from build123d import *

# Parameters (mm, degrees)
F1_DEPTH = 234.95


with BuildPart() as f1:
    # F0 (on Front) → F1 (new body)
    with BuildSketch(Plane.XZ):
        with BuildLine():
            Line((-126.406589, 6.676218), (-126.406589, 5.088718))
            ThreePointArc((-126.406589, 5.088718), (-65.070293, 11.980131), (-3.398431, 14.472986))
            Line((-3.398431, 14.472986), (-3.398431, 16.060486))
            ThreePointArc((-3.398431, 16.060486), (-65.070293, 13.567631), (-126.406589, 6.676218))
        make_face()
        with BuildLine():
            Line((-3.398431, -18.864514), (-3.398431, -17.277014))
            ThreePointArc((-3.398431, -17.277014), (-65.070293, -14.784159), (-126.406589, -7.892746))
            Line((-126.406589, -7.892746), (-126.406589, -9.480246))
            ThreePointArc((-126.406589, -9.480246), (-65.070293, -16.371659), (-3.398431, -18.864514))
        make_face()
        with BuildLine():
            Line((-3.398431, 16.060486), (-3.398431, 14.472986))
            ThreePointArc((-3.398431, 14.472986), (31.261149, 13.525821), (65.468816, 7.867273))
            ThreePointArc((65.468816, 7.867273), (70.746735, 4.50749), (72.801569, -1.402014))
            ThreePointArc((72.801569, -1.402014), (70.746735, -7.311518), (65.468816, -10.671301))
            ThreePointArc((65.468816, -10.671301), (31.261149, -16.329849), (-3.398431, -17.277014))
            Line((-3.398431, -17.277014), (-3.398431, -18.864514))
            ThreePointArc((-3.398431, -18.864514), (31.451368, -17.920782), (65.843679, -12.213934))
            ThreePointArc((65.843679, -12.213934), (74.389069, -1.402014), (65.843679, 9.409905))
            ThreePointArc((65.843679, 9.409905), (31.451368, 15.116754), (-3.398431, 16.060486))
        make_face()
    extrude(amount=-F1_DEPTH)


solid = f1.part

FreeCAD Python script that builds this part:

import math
import FreeCAD as App
import Part
import Sketcher
Q = App.Units.Quantity

doc = App.newDocument("Part")
body = doc.addObject("PartDesign::Body", "Body")

# Sketch on XZ plane
sketch1 = doc.addObject("Sketcher::SketchObject", "Sketch")
body.addObject(sketch1)
sketch1.AttachmentSupport = (doc.XZ_Plane, [""])
sketch1.MapMode = "FlatFace"
sketch1.addGeometry([
    Part.LineSegment(App.Vector(-126.406589, 6.676218, 0), App.Vector(-126.406589, 5.088718, 0)),  # 0
    Part.ArcOfCircle(Part.Circle(App.Vector(0.622686, -849.117643, 0), App.Vector(0, 0, 1), 863.599991), math.radians(90.266783), math.radians(98.458483)),  # 1
    Part.ArcOfCircle(Part.Circle(App.Vector(7.008907, -239.313679, 0), App.Vector(0, 0, 1), 253.999969), math.radians(76.693676), math.radians(92.348282)),  # 2
    Part.ArcOfCircle(Part.Circle(App.Vector(63.276567, -1.402015, 0), App.Vector(0, 0, 1), 9.525002), math.radians(0.000008), math.radians(76.693666)),  # 3
    Part.ArcOfCircle(Part.Circle(App.Vector(63.276567, -1.402013, 0), App.Vector(0, 0, 1), 9.525002), math.radians(-76.693666), math.radians(-0.000008)),  # 4
    Part.ArcOfCircle(Part.Circle(App.Vector(7.008907, 236.509651, 0), App.Vector(0, 0, 1), 253.999969), math.radians(-92.348282), math.radians(-76.693676)),  # 5
    Part.ArcOfCircle(Part.Circle(App.Vector(0.622686, 846.313615, 0), App.Vector(0, 0, 1), 863.599991), math.radians(-98.458483), math.radians(-90.266783)),  # 6
    Part.LineSegment(App.Vector(-126.406589, -7.892746, 0), App.Vector(-126.406589, -9.480246, 0)),  # 7
    Part.ArcOfCircle(Part.Circle(App.Vector(0.622686, 844.726115, 0), App.Vector(0, 0, 1), 863.599991), math.radians(-98.458483), math.radians(-90.266783)),  # 8
    Part.ArcOfCircle(Part.Circle(App.Vector(7.166884, 234.915656, 0), App.Vector(0, 0, 1), 254.000001), math.radians(-92.383947), math.radians(-76.643399)),  # 9
    Part.ArcOfCircle(Part.Circle(App.Vector(63.276569, -1.402014, 0), App.Vector(0, 0, 1), 11.1125), math.radians(-76.643398), math.radians(76.643398)),  # 10
    Part.ArcOfCircle(Part.Circle(App.Vector(7.166885, -237.719633, 0), App.Vector(0, 0, 1), 253.99995), math.radians(76.643396), math.radians(92.383948)),  # 11
    Part.ArcOfCircle(Part.Circle(App.Vector(0.622686, -847.530143, 0), App.Vector(0, 0, 1), 863.599991), math.radians(90.266783), math.radians(98.458483)),  # 12
], False)
sketch1.addConstraint([
    Sketcher.Constraint("Coincident", 0, 2, 1, 2),
    Sketcher.Constraint("Coincident", 1, 1, 2, 2),
    Sketcher.Constraint("Coincident", 2, 1, 3, 2),
    Sketcher.Constraint("Coincident", 3, 1, 4, 2),
    Sketcher.Constraint("Coincident", 4, 1, 5, 2),
    Sketcher.Constraint("Coincident", 5, 1, 6, 2),
    Sketcher.Constraint("Coincident", 6, 1, 7, 1),
    Sketcher.Constraint("Coincident", 7, 2, 8, 1),
    Sketcher.Constraint("Coincident", 8, 2, 9, 1),
    Sketcher.Constraint("Coincident", 9, 2, 10, 1),
    Sketcher.Constraint("Coincident", 10, 2, 11, 1),
    Sketcher.Constraint("Coincident", 11, 2, 12, 1),
    Sketcher.Constraint("Coincident", 12, 2, 0, 1),
    Sketcher.Constraint("Vertical", 0),
    Sketcher.Constraint("Vertical", 7),
    Sketcher.Constraint("Coincident", 4, 3, 3, 3),
    Sketcher.Constraint("Coincident", 10, 3, 3, 3),
    Sketcher.Constraint("Radius", 9, Q("10.0000001 in")),
    Sketcher.Constraint("Radius", 3, Q("0.3750001 in")),
    Sketcher.Constraint("Radius", 10, Q("0.4375 in")),
    Sketcher.Constraint("DistanceX", 1, 1, 3, 1, Q("3 in")),
    Sketcher.Constraint("DistanceY", 0, 2, 0, 1, Q("0.0625 in")),
    Sketcher.Constraint("DistanceY", 7, 2, 7, 1, Q("0.0625 in")),
    Sketcher.Constraint("DistanceY", 5, 1, 1, 1, Q("1.25 in")),
    Sketcher.Constraint("Radius", 1, Q("863.599991 mm")),
    Sketcher.Constraint("Radius", 2, Q("253.999969 mm")),
    Sketcher.Constraint("Radius", 5, Q("253.999969 mm")),
    Sketcher.Constraint("Radius", 6, Q("863.599991 mm")),
    Sketcher.Constraint("Radius", 8, Q("863.599991 mm")),
    Sketcher.Constraint("Radius", 11, Q("253.99995 mm")),
    Sketcher.Constraint("Radius", 12, Q("863.599991 mm")),
    Sketcher.Constraint("DistanceY", 8, 3, 6, 3, Q("0.0625 in")),
    Sketcher.Constraint("DistanceY", 1, 3, 12, 3, Q("0.0625 in")),
    Sketcher.Constraint("DistanceY", 4, 3, 1, 1, Q("0.625 in")),
    Sketcher.Constraint("DistanceY", 3, 1, 1, 1, Q("0.625 in")),
    Sketcher.Constraint("DistanceX", 5, 1, 3, 3, Q("2.6249999 in")),
    Sketcher.Constraint("DistanceY", 8, 2, 5, 1, Q("0.0625 in")),
    Sketcher.Constraint("DistanceY", 1, 1, 11, 2, Q("0.0625 in")),
    Sketcher.Constraint("DistanceY", 4, 1, -1, 1, Q("10.671301 mm")),
    Sketcher.Constraint("DistanceX", 12, 3, 11, 3, Q("6.544199 mm")),
    Sketcher.Constraint("DistanceY", 2, 3, -1, 1, Q("239.313679 mm")),
    Sketcher.Constraint("DistanceX", -1, 1, 10, 3, Q("63.276569 mm")),
    Sketcher.Constraint("DistanceX", 0, 2, -1, 1, Q("126.406589 mm")),
    Sketcher.Constraint("DistanceX", 7, 2, -1, 1, Q("126.406589 mm")),
    Sketcher.Constraint("DistanceX", -1, 1, 9, 2, Q("65.843679 mm")),
    Sketcher.Constraint("DistanceX", -1, 1, 10, 2, Q("65.843679 mm")),
    Sketcher.Constraint("DistanceX", 6, 3, 5, 3, Q("6.386221 mm")),
    Sketcher.Constraint("DistanceX", 4, 3, 2, 1, Q("2.192249 mm")),
])
pad1 = doc.addObject("PartDesign::Pad", "Pad")
body.addObject(pad1)
pad1.Profile = sketch1
pad1.Length = Q("9.25 in")
pad1.Reversed = True

doc.recompute()
